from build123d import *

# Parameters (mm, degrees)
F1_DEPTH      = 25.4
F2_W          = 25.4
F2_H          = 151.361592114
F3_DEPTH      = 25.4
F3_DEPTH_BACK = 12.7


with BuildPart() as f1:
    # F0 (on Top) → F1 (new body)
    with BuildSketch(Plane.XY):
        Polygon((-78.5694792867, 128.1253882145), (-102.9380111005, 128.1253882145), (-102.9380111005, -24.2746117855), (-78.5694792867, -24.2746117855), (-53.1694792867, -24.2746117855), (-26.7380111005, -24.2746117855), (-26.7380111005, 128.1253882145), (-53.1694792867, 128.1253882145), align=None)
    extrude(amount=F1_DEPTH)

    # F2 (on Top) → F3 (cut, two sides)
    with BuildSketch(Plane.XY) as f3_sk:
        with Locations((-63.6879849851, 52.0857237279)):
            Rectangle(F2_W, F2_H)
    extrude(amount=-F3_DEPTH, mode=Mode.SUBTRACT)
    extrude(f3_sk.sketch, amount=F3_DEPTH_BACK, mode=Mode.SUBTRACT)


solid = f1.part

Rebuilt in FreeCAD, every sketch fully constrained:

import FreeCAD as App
import Part
import Sketcher
from FreeCAD import Vector
Q = App.Units.Quantity


def add_polygon(sketch, points):
    """Adds a closed chain of lines whose ends are joined by coincident constraints."""
    first, n = sketch.GeometryCount, len(points)
    for a, b in zip(points, points[1:] + points[:1]):
        sketch.addGeometry(Part.LineSegment(App.Vector(*a, 0), App.Vector(*b, 0)), False)
    for i in range(n):
        sketch.addConstraint(Sketcher.Constraint("Coincident", first + i, 2, first + (i + 1) % n, 1))

doc = App.newDocument("Part")
body = doc.addObject("PartDesign::Body", "Body")

# Sketch on XY plane
sketch1 = body.newObject("Sketcher::SketchObject", "Sketch")
sketch1.AttachmentSupport = (doc.getObject("XY_Plane"), [""])
sketch1.MapMode = "FlatFace"
add_polygon(sketch1, [(-103, 128), (-103, -24), (-27, -24), (-27, 128)])  # lines 0-3
sketch1.addConstraint([
    Sketcher.Constraint("Vertical", 0),
    Sketcher.Constraint("Horizontal", 1),
    Sketcher.Constraint("Vertical", 2),
    Sketcher.Constraint("Horizontal", 3),
    Sketcher.Constraint("DistanceX", 1, 1, 1, 2, Q("3 in")),
    Sketcher.Constraint("DistanceY", 0, 2, 0, 1, Q("6 in")),
    Sketcher.Constraint("DistanceX", 0, 2, -1, 1, 102.938011),
    Sketcher.Constraint("DistanceY", 0, 2, -1, 1, 24.274612),
])
pad1 = body.newObject("PartDesign::Pad", "Pad")
pad1.Profile = sketch1
pad1.Length = Q("1 in")

# Sketch on XY plane
sketch2 = body.newObject("Sketcher::SketchObject", "Sketch001")
sketch2.AttachmentSupport = (doc.getObject("XY_Plane"), [""])
sketch2.MapMode = "FlatFace"
add_polygon(sketch2, [(-76, 128), (-76, -24), (-51, -24), (-51, 128)])  # lines 0-3
sketch2.addConstraint([
    Sketcher.Constraint("Vertical", 0),
    Sketcher.Constraint("Horizontal", 1),
    Sketcher.Constraint("Vertical", 2),
    Sketcher.Constraint("Horizontal", 3),
    Sketcher.Constraint("DistanceX", 1, 1, 1, 2, Q("1 in")),
    Sketcher.Constraint("DistanceY", 0, 2, 0, 1, 151.361592),
    Sketcher.Constraint("DistanceY", -1, 1, 2, 2, 127.76652),
    Sketcher.Constraint("DistanceX", 0, 2, -1, 1, 76.387985),
])
pocket1 = body.newObject("PartDesign::Pocket", "Pocket")
pocket1.Profile = sketch2
pocket1.Type = "TwoLengths"
pocket1.Length = Q("1 in")
pocket1.Length2 = Q("0.5 in")

doc.recompute()
